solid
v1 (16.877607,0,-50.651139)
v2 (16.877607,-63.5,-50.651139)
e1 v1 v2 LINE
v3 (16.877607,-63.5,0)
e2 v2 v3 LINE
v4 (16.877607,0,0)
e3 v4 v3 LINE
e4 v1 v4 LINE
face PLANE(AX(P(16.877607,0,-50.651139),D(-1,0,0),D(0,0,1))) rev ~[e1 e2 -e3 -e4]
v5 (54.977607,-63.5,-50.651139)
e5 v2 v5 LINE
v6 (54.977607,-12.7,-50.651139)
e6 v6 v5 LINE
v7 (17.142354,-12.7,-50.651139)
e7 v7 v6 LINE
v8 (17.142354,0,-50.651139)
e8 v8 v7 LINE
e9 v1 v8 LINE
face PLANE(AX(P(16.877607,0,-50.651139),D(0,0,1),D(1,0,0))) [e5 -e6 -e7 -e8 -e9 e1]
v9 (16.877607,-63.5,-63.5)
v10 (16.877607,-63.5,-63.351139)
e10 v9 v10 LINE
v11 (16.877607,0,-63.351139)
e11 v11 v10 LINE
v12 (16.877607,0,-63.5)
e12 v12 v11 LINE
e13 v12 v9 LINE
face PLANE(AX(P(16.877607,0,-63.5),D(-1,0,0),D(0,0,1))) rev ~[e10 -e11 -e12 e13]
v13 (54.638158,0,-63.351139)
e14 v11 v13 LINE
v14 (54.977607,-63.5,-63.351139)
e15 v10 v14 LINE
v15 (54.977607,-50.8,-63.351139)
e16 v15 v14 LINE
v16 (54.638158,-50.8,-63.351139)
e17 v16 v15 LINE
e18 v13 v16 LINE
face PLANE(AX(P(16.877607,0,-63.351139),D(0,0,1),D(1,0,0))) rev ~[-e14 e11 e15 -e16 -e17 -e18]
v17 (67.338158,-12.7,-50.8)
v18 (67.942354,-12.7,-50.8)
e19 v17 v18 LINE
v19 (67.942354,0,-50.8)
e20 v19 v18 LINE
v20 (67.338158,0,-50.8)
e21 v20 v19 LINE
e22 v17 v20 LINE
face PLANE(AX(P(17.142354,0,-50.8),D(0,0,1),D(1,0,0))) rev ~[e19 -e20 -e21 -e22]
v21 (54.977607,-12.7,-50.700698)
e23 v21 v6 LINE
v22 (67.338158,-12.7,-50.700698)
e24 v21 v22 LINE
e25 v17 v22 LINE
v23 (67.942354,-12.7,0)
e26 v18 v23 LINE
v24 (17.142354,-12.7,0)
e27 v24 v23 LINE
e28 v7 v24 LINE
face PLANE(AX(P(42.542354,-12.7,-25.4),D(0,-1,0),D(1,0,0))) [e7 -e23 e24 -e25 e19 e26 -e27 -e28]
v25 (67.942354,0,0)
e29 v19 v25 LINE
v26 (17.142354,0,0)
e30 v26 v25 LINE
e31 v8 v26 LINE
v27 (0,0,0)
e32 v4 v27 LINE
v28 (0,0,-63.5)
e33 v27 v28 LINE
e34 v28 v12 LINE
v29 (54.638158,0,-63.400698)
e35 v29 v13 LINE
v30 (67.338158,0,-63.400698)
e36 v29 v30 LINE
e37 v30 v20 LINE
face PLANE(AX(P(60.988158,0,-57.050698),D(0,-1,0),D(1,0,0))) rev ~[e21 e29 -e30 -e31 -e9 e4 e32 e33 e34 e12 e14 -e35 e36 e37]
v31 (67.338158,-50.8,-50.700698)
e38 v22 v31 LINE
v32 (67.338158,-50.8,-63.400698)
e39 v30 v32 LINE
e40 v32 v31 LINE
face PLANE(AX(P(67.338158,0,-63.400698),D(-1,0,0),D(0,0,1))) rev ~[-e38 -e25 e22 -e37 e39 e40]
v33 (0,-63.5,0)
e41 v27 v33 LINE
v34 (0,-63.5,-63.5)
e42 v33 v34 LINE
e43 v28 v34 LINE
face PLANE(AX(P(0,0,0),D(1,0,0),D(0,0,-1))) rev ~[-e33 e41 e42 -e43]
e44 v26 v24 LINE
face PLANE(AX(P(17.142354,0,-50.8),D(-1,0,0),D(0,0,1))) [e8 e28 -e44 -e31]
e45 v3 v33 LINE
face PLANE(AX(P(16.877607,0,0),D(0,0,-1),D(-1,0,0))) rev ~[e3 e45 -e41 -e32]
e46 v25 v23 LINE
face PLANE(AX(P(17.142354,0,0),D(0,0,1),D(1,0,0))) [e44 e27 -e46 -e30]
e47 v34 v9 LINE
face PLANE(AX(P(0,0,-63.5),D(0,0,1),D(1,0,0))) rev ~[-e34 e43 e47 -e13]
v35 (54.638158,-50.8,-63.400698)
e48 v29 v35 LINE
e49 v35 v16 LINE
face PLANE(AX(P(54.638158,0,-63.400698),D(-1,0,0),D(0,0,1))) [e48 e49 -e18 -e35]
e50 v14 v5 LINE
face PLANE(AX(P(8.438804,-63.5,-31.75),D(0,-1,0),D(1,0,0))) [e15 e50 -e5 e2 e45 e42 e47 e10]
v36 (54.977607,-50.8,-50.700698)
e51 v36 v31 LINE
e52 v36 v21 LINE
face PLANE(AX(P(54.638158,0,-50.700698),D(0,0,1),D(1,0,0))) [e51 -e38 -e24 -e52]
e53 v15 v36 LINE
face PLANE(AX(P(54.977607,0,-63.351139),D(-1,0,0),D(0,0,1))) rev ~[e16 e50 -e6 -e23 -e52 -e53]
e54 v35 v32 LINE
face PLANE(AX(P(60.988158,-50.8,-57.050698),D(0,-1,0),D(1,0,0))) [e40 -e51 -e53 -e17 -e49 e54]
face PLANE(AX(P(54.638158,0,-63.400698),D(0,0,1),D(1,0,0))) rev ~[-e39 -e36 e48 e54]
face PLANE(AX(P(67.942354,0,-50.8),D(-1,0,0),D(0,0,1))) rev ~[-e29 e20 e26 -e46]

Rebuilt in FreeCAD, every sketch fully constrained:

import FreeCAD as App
import Part
import Sketcher
from FreeCAD import Vector
Q = App.Units.Quantity

doc = App.newDocument("Part")
body = doc.addObject("PartDesign::Body", "Body")

sketch1 = body.newObject("Sketcher::SketchObject", "Sketch")
sketch1.AttachmentSupport = (doc.getObject("XZ_Plane"), [""])
sketch1.MapMode = "FlatFace"
sketch1.addGeometry([
    Part.LineSegment(Vector(16.88, 0, 0), Vector(0, 0, 0)),
    Part.LineSegment(Vector(0, 0, 0), Vector(0, -63.5, 0)),
    Part.LineSegment(Vector(0, -63.5, 0), Vector(16.88, -63.5, 0)),
    Part.LineSegment(Vector(16.88, -63.5, 0), Vector(16.88, -63.35, 0)),
    Part.LineSegment(Vector(16.88, -63.35, 0), Vector(54.98, -63.35, 0)),
    Part.LineSegment(Vector(54.98, -63.35, 0), Vector(54.98, -50.65, 0)),
    Part.LineSegment(Vector(54.98, -50.65, 0), Vector(16.88, -50.65, 0)),
    Part.LineSegment(Vector(16.88, -50.65, 0), Vector(16.88, 0, 0)),
], False)
sketch1.addConstraint([
    Sketcher.Constraint("Coincident", 0, 2, 1, 1),
    Sketcher.Constraint("Coincident", 1, 2, 2, 1),
    Sketcher.Constraint("Coincident", 2, 2, 3, 1),
    Sketcher.Constraint("Coincident", 3, 2, 4, 1),
    Sketcher.Constraint("Coincident", 4, 2, 5, 1),
    Sketcher.Constraint("Coincident", 5, 2, 6, 1),
    Sketcher.Constraint("Coincident", 6, 2, 7, 1),
    Sketcher.Constraint("Coincident", 7, 2, 0, 1),
    Sketcher.Constraint("Horizontal", 0),
    Sketcher.Constraint("Vertical", 1),
    Sketcher.Constraint("Horizontal", 2),
    Sketcher.Constraint("Vertical", 3),
    Sketcher.Constraint("Horizontal", 4),
    Sketcher.Constraint("Vertical", 5),
    Sketcher.Constraint("Horizontal", 6),
    Sketcher.Constraint("Vertical", 7),
    Sketcher.Constraint("Coincident", 0, 2, -1, 1),
    Sketcher.Constraint("Vertical", 3, 2, 6, 2),
    Sketcher.Constraint("DistanceX", 4, 1, 4, 2, Q("1.5 in")),
    Sketcher.Constraint("DistanceY", 1, 2, 1, 1, Q("2.5 in")),
    Sketcher.Constraint("DistanceY", 5, 1, 5, 2, Q("0.5 in")),
    Sketcher.Constraint("DistanceY", 3, 1, 3, 2, 0.148861),
    Sketcher.Constraint("DistanceX", 0, 2, 0, 1, 16.877607),
])
pad1 = body.newObject("PartDesign::Pad", "Pad")
pad1.Profile = sketch1
pad1.Length = Q("2.5 in")

sketch2 = body.newObject("Sketcher::SketchObject", "Sketch001")
sketch2.AttachmentSupport = (doc.getObject("XZ_Plane"), [""])
sketch2.MapMode = "FlatFace"
sketch2.addGeometry([
    Part.LineSegment(Vector(55, -51, 0), Vector(55, -63, 0)),
    Part.LineSegment(Vector(55, -63, 0), Vector(67, -63, 0)),
    Part.LineSegment(Vector(67, -63, 0), Vector(67, -51, 0)),
    Part.LineSegment(Vector(67, -51, 0), Vector(55, -51, 0)),
], False)
sketch2.addConstraint([
    Sketcher.Constraint("Coincident", 0, 2, 1, 1),
    Sketcher.Constraint("Coincident", 1, 2, 2, 1),
    Sketcher.Constraint("Coincident", 2, 2, 3, 1),
    Sketcher.Constraint("Coincident", 3, 2, 0, 1),
    Sketcher.Constraint("Vertical", 0),
    Sketcher.Constraint("Horizontal", 1),
    Sketcher.Constraint("Vertical", 2),
    Sketcher.Constraint("Horizontal", 3),
    Sketcher.Constraint("Equal", 3, 0),
    Sketcher.Constraint("DistanceX", 1, 1, 1, 2, Q("0.5 in")),
    Sketcher.Constraint("DistanceY", 2, 2, -1, 1, 50.700698),
    Sketcher.Constraint("DistanceX", -1, 1, 1, 2, 67.338158),
])
pad2 = body.newObject("PartDesign::Pad", "Pad001")
pad2.Profile = sketch2
pad2.Length = Q("2 in")

sketch3 = body.newObject("Sketcher::SketchObject", "Sketch002")
sketch3.AttachmentSupport = (doc.getObject("XZ_Plane"), [""])
sketch3.MapMode = "FlatFace"
sketch3.addGeometry([
    Part.LineSegment(Vector(17, 0, 0), Vector(17, -51, 0)),
    Part.LineSegment(Vector(17, -51, 0), Vector(68, -51, 0)),
    Part.LineSegment(Vector(68, -51, 0), Vector(68, 0, 0)),
    Part.LineSegment(Vector(68, 0, 0), Vector(17, 0, 0)),
], False)
sketch3.addConstraint([
    Sketcher.Constraint("Coincident", 0, 2, 1, 1),
    Sketcher.Constraint("Coincident", 1, 2, 2, 1),
    Sketcher.Constraint("Coincident", 2, 2, 3, 1),
    Sketcher.Constraint("Coincident", 3, 2, 0, 1),
    Sketcher.Constraint("Vertical", 0),
    Sketcher.Constraint("Horizontal", 1),
    Sketcher.Constraint("Vertical", 2),
    Sketcher.Constraint("Horizontal", 3),
    Sketcher.Constraint("PointOnObject", 2, 2, -1),
    Sketcher.Constraint("Equal", 3, 0),
    Sketcher.Constraint("DistanceX", 1, 1, 1, 2, Q("2 in")),
    Sketcher.Constraint("DistanceX", -1, 1, 0, 2, 17.142354),
])
pad3 = body.newObject("PartDesign::Pad", "Pad002")
pad3.Profile = sketch3
pad3.Length = Q("0.5 in")
body2 = doc.addObject("PartDesign::Body", "Body001")

sketch4 = body2.newObject("Sketcher::SketchObject", "Sketch003")
sketch4.AttachmentSupport = (doc.getObject("XZ_Plane001"), [""])
sketch4.MapMode = "FlatFace"
sketch4.addGeometry([
    Part.LineSegment(Vector(56, -51, 0), Vector(56, -63, 0)),
    Part.LineSegment(Vector(56, -63, 0), Vector(66, -63, 0)),
    Part.LineSegment(Vector(66, -63, 0), Vector(66, -51, 0)),
    Part.LineSegment(Vector(66, -51, 0), Vector(56, -51, 0)),
], False)
sketch4.addConstraint([
    Sketcher.Constraint("Coincident", 0, 2, 1, 1),
    Sketcher.Constraint("Coincident", 1, 2, 2, 1),
    Sketcher.Constraint("Coincident", 2, 2, 3, 1),
    Sketcher.Constraint("Coincident", 3, 2, 0, 1),
    Sketcher.Constraint("Vertical", 0),
    Sketcher.Constraint("Horizontal", 1),
    Sketcher.Constraint("Vertical", 2),
    Sketcher.Constraint("Horizontal", 3),
    Sketcher.Constraint("DistanceX", 1, 1, 1, 2, 10.787756),
    Sketcher.Constraint("DistanceY", 0, 2, 0, 1, 12.239977),
    Sketcher.Constraint("DistanceX", -1, 1, 0, 2, 55.598497),
    Sketcher.Constraint("DistanceY", 0, 2, -1, 1, 62.859504),
])
pad4 = body2.newObject("PartDesign::Pad", "Pad003")
pad4.Profile = sketch4
pad4.Length = Q("1 in")
body2.Visibility = False

doc.recompute()
